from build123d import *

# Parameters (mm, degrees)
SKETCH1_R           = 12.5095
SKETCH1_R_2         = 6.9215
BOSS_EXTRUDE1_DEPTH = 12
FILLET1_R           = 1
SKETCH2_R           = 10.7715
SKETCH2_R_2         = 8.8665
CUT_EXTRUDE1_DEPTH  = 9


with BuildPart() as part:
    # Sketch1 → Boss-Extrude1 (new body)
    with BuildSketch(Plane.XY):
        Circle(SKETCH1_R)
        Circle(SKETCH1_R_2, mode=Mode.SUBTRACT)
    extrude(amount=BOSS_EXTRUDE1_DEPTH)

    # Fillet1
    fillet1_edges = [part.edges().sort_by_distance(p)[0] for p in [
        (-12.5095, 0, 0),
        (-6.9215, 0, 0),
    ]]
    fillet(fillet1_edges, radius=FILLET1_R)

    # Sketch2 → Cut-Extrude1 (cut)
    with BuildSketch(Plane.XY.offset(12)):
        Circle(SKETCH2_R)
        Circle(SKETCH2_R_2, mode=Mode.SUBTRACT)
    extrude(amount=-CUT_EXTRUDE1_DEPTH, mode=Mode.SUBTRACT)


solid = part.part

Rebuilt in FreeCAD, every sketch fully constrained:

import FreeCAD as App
import Part
import Sketcher
from FreeCAD import Vector


def edges_at(feature, points):
    """Names of the edges that pass closest to the given points."""
    edges = feature.Shape.Edges
    near = lambda p: min(range(len(edges)), key=lambda i: edges[i].distToShape(Part.Vertex(*p))[0])
    return sorted({f"Edge{near(p) + 1}" for p in points})

doc = App.newDocument("Part")
body = doc.addObject("PartDesign::Body", "Body")

sketch1 = doc.addObject("Sketcher::SketchObject", "Sketch")
body.addObject(sketch1)
sketch1.AttachmentSupport = (doc.XY_Plane, [""])
sketch1.MapMode = "FlatFace"
sketch1.addGeometry([
    Part.Circle(Vector(0, 0, 0), Vector(0, 0, 1), 12.5095),
    Part.Circle(Vector(0, 0, 0), Vector(0, 0, 1), 6.9215),
], False)
sketch1.addConstraint([
    Sketcher.Constraint("Coincident", 0, 3, -1, 1),
    Sketcher.Constraint("Coincident", 1, 3, -1, 1),
    Sketcher.Constraint("Diameter", 0, 25.019),
    Sketcher.Constraint("Diameter", 1, 13.843),
])
pad1 = doc.addObject("PartDesign::Pad", "Pad")
body.addObject(pad1)
pad1.Profile = sketch1
pad1.Length = 12
doc.recompute()

fillet = doc.addObject("PartDesign::Fillet", "Fillet")
body.addObject(fillet)
fillet.Base = (pad1, edges_at(pad1, [(-12.509, 0, 0), (-6.921, 0, 0)]))
fillet.Radius = 1

sketch2 = doc.addObject("Sketcher::SketchObject", "Sketch001")
body.addObject(sketch2)
sketch2.AttachmentSupport = (doc.XY_Plane, [""])
sketch2.MapMode = "FlatFace"
sketch2.AttachmentOffset = App.Placement(Vector(0, 0, 12), App.Rotation())
sketch2.addGeometry([
    Part.Circle(Vector(0, 0, 0), Vector(0, 0, 1), 10.7715),
    Part.Circle(Vector(0, 0, 0), Vector(0, 0, 1), 8.8665),
], False)
sketch2.addConstraint([
    Sketcher.Constraint("Coincident", 0, 3, -1, 1),
    Sketcher.Constraint("Coincident", 1, 3, -1, 1),
    Sketcher.Constraint("Diameter", 0, 21.543),
    Sketcher.Constraint("Diameter", 1, 17.733),
])
pocket1 = doc.addObject("PartDesign::Pocket", "Pocket")
body.addObject(pocket1)
pocket1.Profile = sketch2
pocket1.Length = 9

doc.recompute()
